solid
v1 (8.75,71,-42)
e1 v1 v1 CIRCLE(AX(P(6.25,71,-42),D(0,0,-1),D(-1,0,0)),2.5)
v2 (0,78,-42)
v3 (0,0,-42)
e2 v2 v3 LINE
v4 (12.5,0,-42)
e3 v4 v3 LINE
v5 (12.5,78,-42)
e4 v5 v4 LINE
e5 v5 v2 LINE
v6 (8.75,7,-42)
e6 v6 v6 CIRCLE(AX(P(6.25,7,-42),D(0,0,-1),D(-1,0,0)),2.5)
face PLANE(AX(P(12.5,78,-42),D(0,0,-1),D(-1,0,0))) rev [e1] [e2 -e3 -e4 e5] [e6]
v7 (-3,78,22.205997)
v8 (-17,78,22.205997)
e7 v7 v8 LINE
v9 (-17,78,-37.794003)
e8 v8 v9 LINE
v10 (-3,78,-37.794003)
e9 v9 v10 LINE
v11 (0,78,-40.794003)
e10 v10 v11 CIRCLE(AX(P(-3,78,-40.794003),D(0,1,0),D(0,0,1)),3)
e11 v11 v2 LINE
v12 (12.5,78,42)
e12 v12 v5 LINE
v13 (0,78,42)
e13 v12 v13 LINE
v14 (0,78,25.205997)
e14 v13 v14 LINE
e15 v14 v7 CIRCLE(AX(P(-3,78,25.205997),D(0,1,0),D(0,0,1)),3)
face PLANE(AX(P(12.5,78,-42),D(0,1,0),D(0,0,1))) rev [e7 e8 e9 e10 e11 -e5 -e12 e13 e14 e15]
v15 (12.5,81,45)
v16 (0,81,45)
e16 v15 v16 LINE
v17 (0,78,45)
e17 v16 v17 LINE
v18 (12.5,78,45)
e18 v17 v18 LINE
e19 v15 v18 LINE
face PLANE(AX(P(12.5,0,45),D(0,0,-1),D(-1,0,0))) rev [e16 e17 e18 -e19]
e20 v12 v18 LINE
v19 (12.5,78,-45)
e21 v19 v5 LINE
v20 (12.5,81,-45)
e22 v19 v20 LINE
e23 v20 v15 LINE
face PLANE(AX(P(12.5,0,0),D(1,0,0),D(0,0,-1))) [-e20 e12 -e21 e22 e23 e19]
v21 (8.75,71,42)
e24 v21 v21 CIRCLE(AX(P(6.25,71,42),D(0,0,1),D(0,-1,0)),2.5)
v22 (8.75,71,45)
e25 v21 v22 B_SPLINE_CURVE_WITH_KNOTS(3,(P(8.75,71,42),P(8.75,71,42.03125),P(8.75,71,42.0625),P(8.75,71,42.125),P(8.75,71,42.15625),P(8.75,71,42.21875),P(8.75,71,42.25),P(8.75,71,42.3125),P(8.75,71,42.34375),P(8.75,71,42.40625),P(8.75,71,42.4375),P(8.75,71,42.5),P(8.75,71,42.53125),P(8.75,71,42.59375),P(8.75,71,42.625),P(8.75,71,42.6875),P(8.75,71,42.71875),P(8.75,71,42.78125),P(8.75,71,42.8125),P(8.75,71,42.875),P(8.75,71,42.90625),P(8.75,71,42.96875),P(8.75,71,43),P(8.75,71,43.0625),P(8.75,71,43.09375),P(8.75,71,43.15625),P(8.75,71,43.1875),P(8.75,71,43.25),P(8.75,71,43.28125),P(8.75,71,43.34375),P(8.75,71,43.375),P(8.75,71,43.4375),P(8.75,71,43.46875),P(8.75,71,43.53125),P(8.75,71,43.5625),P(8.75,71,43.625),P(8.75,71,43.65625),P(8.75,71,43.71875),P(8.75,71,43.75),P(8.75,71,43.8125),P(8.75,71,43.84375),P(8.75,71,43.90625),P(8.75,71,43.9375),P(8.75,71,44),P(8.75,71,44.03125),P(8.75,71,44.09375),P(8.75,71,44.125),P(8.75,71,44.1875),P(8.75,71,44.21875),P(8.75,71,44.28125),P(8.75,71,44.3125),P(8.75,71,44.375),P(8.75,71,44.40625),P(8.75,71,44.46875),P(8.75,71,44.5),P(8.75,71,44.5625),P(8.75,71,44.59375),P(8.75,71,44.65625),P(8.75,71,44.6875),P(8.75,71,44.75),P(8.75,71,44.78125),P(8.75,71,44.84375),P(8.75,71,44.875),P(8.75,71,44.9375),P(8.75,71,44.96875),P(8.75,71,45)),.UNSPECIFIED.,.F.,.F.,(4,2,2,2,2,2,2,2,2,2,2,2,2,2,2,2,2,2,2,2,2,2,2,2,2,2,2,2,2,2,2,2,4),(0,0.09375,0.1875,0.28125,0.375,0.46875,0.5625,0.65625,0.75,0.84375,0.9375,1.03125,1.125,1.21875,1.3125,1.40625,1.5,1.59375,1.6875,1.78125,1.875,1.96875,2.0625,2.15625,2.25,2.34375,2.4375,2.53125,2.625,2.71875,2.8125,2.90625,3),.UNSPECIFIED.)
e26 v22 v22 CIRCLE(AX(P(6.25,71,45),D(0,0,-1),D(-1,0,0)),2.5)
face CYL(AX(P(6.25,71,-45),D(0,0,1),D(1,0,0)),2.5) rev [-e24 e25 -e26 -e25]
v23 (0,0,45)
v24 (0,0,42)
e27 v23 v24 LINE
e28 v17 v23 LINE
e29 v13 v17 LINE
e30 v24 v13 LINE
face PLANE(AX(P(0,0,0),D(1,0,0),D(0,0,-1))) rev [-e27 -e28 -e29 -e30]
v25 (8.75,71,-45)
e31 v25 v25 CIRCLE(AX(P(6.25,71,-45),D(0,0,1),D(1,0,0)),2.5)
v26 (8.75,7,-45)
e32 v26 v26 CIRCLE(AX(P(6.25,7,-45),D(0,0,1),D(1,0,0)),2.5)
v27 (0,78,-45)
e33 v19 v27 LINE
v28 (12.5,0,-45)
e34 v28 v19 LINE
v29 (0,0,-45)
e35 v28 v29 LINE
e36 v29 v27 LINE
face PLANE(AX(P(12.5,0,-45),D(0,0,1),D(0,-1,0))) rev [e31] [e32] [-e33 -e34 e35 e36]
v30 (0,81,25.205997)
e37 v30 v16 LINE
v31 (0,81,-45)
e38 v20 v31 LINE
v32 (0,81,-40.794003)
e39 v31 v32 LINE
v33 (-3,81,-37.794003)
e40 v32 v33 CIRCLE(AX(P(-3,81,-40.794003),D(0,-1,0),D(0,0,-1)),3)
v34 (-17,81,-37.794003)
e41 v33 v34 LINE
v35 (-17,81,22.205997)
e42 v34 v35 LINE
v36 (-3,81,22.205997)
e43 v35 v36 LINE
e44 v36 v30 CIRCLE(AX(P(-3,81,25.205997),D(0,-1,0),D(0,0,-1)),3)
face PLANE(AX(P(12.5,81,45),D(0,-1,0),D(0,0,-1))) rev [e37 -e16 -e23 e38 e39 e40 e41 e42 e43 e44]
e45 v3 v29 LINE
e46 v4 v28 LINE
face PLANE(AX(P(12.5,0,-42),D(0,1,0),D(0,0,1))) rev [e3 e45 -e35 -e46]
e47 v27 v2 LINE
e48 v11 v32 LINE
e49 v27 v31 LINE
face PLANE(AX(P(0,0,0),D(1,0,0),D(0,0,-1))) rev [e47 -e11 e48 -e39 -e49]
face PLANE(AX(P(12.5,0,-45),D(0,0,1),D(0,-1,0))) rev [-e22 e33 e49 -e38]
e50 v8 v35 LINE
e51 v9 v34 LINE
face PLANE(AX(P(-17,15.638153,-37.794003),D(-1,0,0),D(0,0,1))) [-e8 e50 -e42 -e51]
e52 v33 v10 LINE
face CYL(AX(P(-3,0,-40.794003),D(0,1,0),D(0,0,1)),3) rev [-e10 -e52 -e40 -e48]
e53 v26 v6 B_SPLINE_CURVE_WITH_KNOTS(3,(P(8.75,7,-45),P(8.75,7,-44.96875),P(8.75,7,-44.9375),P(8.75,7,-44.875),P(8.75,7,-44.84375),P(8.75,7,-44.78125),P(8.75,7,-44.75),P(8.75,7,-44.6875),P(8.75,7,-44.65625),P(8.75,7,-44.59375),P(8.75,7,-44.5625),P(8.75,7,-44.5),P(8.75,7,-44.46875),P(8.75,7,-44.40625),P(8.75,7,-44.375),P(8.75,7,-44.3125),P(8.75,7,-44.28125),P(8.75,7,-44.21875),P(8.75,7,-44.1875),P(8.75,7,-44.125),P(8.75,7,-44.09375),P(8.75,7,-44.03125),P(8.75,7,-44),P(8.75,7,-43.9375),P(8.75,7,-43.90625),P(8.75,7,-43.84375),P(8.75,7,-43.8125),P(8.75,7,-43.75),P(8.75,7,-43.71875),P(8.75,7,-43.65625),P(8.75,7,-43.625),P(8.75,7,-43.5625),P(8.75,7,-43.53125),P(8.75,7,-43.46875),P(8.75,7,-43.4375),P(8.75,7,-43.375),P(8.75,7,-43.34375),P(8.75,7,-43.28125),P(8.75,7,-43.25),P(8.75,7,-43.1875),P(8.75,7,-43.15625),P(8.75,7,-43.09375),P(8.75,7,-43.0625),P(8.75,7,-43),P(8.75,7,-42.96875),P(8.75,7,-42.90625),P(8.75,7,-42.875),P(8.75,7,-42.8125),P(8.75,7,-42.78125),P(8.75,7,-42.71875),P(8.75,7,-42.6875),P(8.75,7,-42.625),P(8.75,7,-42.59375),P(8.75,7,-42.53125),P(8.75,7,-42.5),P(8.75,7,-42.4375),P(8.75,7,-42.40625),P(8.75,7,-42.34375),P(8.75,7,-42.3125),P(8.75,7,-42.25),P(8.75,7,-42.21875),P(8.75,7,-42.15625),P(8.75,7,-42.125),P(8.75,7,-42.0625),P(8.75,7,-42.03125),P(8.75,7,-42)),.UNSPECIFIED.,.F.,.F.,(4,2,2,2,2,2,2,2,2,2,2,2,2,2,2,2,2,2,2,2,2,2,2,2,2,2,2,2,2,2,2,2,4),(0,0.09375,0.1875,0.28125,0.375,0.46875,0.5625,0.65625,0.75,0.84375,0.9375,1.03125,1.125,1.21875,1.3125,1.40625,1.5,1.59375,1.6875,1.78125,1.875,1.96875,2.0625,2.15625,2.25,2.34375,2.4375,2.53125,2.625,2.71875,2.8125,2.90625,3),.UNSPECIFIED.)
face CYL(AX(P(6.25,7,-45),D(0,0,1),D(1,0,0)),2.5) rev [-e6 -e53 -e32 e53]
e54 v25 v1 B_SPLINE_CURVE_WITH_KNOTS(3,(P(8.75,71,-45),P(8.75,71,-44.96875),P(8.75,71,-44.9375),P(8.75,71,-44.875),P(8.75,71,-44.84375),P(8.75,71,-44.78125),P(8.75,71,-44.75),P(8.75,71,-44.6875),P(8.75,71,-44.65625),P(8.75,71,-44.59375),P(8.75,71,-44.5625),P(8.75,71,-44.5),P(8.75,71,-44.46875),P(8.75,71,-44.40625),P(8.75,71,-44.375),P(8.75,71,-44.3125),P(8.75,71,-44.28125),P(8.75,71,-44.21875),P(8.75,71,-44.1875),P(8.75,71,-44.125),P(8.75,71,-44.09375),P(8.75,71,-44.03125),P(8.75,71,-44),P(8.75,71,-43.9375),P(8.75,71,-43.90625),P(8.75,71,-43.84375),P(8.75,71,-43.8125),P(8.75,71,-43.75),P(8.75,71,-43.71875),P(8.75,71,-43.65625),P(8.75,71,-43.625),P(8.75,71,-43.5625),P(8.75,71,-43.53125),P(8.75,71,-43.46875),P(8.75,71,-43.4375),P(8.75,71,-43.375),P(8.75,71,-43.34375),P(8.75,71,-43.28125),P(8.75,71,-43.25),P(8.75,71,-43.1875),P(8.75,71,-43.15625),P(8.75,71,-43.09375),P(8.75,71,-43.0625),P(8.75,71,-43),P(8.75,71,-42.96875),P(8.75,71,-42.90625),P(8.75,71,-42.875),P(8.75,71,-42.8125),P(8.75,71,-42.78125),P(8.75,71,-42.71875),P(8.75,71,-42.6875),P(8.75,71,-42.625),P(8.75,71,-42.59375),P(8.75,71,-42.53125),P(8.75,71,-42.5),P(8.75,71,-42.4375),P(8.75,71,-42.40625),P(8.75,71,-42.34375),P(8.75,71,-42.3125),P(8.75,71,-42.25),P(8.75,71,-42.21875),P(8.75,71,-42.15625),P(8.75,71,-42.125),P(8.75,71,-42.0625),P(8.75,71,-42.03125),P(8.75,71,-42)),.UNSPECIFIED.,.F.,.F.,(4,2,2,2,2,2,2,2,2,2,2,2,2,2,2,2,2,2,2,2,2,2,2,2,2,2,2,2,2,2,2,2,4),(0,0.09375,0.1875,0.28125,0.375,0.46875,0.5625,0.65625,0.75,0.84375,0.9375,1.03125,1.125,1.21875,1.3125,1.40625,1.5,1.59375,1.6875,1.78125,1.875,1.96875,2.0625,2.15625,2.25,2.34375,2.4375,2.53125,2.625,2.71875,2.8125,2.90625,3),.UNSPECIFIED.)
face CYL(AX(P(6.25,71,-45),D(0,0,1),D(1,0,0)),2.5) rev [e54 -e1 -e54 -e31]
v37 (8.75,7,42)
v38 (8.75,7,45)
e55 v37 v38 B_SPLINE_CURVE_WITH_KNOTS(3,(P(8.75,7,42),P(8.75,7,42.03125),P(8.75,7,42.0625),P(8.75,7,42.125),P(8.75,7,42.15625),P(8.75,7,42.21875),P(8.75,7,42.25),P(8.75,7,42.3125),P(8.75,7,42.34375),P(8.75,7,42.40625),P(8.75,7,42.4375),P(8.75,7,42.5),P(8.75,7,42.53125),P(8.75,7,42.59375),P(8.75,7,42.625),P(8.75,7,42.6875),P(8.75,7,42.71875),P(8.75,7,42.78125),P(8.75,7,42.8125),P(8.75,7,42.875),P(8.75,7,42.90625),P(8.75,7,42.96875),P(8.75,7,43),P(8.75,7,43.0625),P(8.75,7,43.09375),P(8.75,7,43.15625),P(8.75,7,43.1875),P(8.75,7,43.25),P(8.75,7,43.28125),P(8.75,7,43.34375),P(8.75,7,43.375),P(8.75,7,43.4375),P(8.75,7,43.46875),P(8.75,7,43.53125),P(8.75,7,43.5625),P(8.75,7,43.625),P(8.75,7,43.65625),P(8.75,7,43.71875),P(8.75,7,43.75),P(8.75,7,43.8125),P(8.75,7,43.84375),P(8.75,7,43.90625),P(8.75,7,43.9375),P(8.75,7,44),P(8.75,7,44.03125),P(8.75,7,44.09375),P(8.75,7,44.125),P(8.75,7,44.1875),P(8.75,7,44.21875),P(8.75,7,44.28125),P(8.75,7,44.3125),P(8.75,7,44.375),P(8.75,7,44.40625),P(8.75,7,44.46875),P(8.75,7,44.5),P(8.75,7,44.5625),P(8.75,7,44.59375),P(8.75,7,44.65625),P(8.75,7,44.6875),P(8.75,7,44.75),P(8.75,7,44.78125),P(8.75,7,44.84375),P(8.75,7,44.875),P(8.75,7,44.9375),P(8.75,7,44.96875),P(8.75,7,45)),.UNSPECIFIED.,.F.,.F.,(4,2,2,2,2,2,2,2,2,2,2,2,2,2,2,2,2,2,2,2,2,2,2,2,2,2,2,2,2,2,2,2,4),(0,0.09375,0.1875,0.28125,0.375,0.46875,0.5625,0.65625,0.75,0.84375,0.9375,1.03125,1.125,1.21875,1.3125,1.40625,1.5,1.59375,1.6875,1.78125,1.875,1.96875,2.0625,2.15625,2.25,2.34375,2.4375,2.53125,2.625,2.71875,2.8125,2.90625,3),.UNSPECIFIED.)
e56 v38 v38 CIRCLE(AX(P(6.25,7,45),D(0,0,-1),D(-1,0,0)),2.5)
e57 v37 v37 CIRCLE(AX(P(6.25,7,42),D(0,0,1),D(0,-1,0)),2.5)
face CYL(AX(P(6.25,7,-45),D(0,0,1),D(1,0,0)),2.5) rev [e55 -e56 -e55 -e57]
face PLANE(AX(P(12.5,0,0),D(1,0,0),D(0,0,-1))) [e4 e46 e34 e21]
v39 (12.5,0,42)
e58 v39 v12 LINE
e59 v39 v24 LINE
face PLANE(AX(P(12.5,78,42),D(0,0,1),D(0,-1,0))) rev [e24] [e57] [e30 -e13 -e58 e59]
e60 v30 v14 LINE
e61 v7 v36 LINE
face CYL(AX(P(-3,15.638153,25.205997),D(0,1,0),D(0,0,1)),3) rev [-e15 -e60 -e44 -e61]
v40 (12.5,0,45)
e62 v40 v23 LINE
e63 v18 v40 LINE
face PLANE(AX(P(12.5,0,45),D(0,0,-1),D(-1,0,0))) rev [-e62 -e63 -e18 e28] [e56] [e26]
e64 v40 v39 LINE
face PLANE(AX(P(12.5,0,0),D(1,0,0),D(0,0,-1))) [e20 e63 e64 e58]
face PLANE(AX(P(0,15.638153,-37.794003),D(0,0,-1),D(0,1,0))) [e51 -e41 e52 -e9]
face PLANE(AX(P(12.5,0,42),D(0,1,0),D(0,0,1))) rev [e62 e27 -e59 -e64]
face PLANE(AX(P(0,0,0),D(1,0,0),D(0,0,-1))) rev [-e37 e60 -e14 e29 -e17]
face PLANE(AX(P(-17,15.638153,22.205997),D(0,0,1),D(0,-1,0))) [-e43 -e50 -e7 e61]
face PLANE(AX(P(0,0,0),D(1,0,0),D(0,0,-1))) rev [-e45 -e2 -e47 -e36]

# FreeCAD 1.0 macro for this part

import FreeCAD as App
import Part
import Sketcher

V = App.Vector
Q = App.Units.Quantity


def edges_at(feature, points):
    """Names of the edges that pass closest to the given points."""
    edges = feature.Shape.Edges
    near = lambda p: min(range(len(edges)), key=lambda i: edges[i].distToShape(Part.Vertex(*p))[0])
    return sorted({f"Edge{near(p) + 1}" for p in points})


def add_polygon(sketch, points):
    """Adds a closed chain of lines whose ends are joined by coincident constraints."""
    first, n = sketch.GeometryCount, len(points)
    for a, b in zip(points, points[1:] + points[:1]):
        sketch.addGeometry(Part.LineSegment(App.Vector(*a, 0), App.Vector(*b, 0)), False)
    for i in range(n):
        sketch.addConstraint(Sketcher.Constraint("Coincident", first + i, 2, first + (i + 1) % n, 1))

doc = App.newDocument("Part")
body = doc.addObject("PartDesign::Body", "Body")

# Sketch on YZ plane
sketch1 = body.newObject("Sketcher::SketchObject", "Sketch")
sketch1.AttachmentSupport = (doc.getObject("YZ_Plane"), [""])
sketch1.MapMode = "FlatFace"
add_polygon(sketch1, [(78, 42), (78, -42), (0, -42), (0, -45), (81, -45), (81, 45), (0, 45), (0, 42)])  # lines 0-7
sketch1.addConstraint(Sketcher.Constraint("Vertical", 0))
sketch1.addConstraint(Sketcher.Constraint("Horizontal", 1))
sketch1.addConstraint(Sketcher.Constraint("Vertical", 2))
sketch1.addConstraint(Sketcher.Constraint("Horizontal", 3))
sketch1.addConstraint(Sketcher.Constraint("Vertical", 4))
sketch1.addConstraint(Sketcher.Constraint("Horizontal", 5))
sketch1.addConstraint(Sketcher.Constraint("Vertical", 6))
sketch1.addConstraint(Sketcher.Constraint("Horizontal", 7))
sketch1.addConstraint(Sketcher.Constraint("Symmetric", 2, 2, 5, 2, -1, 1))
sketch1.addConstraint(Sketcher.Constraint("Symmetric", 1, 2, 6, 2, -1))
sketch1.addConstraint(Sketcher.Constraint("DistanceX", 1, 2, 1, 1, Q("78 mm")))
sketch1.addConstraint(Sketcher.Constraint("DistanceX", 3, 1, 3, 2, Q("81 mm")))
sketch1.addConstraint(Sketcher.Constraint("DistanceY", 0, 2, 0, 1, Q("84 mm")))
sketch1.addConstraint(Sketcher.Constraint("DistanceY", 2, 2, 2, 1, Q("3 mm")))
pad1 = body.newObject("PartDesign::Pad", "Pad")
pad1.Profile = sketch1
pad1.Length = 12.5

# Sketch on XY plane
sketch2 = body.newObject("Sketcher::SketchObject", "Sketch001")
sketch2.AttachmentSupport = (doc.getObject("XY_Plane"), [""])
sketch2.MapMode = "FlatFace"
sketch2.AttachmentOffset = App.Placement(V(0, 0, 45), App.Rotation())
sketch2.addGeometry(Part.Circle(V(6.2, 71, 0), V(0, 0, 1), 2.5), False)
sketch2.addGeometry(Part.Circle(V(6.2, 7, 0), V(0, 0, 1), 2.5), False)
sketch2.addConstraint(Sketcher.Constraint("Equal", 0, 1))
sketch2.addConstraint(Sketcher.Constraint("Vertical", 0, 3, 1, 3))
sketch2.addConstraint(Sketcher.Constraint("Diameter", 0, Q("5 mm")))
sketch2.addConstraint(Sketcher.Constraint("DistanceY", -1, 1, 0, 3, Q("71 mm")))
sketch2.addConstraint(Sketcher.Constraint("DistanceY", -1, 1, 1, 3, Q("7 mm")))
sketch2.addConstraint(Sketcher.Constraint("DistanceX", -1, 1, 0, 3, Q("6.25 mm")))
pocket1 = body.newObject("PartDesign::Pocket", "Pocket")
pocket1.Profile = sketch2
pocket1.Type = "ThroughAll"
pocket1.Midplane = True

# Sketch on XZ plane
sketch3 = body.newObject("Sketcher::SketchObject", "Sketch002")
sketch3.AttachmentSupport = (doc.getObject("XZ_Plane"), [""])
sketch3.MapMode = "FlatFace"
sketch3.AttachmentOffset = App.Placement(V(0, 0, -81), App.Rotation())
add_polygon(sketch3, [(-17, -38), (-17, 22), (0, 22), (0, -38)])  # lines 0-3
sketch3.addConstraint(Sketcher.Constraint("Vertical", 0))
sketch3.addConstraint(Sketcher.Constraint("Horizontal", 1))
sketch3.addConstraint(Sketcher.Constraint("Vertical", 2))
sketch3.addConstraint(Sketcher.Constraint("Horizontal", 3))
sketch3.addConstraint(Sketcher.Constraint("PointOnObject", 1, 2, -2))
sketch3.addConstraint(Sketcher.Constraint("DistanceX", 1, 1, 1, 2, Q("17 mm")))
sketch3.addConstraint(Sketcher.Constraint("DistanceY", 0, 1, 0, 2, Q("60 mm")))
sketch3.addConstraint(Sketcher.Constraint("DistanceY", -1, 1, 0, 2, Q("22.205997 mm")))
pad2 = body.newObject("PartDesign::Pad", "Pad001")
pad2.Profile = sketch3
pad2.Length = 3
doc.recompute()

fillet = body.newObject("PartDesign::Fillet", "Fillet")
fillet.Base = (pad2, edges_at(pad2, [(0, 79.5, -37.794), (0, 79.5, 22.206)]))
fillet.Radius = 3

doc.recompute()
